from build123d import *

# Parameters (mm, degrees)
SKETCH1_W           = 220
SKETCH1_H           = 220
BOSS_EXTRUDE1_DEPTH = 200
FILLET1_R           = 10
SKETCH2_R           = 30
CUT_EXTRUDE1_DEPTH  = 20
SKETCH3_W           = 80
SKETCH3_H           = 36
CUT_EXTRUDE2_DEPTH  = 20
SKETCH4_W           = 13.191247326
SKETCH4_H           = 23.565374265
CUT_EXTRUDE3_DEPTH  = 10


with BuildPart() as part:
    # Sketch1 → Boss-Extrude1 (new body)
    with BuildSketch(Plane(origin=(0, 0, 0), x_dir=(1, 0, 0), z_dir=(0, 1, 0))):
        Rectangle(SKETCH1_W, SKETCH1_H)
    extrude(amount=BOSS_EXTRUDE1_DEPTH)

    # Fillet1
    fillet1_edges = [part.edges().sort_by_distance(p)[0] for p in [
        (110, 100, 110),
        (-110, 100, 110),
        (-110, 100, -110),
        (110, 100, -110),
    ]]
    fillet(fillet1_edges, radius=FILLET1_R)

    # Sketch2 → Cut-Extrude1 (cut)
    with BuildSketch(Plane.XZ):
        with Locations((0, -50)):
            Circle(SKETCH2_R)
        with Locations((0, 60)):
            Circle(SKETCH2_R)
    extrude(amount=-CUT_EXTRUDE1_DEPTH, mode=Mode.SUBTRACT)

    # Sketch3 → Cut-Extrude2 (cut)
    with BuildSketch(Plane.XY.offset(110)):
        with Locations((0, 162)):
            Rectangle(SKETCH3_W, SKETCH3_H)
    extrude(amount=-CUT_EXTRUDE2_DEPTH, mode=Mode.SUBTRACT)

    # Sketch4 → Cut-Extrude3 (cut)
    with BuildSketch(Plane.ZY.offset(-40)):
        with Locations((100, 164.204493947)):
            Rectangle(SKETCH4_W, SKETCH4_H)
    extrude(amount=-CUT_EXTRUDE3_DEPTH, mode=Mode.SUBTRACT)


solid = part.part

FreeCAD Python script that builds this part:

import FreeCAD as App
import Part
import Sketcher

V = App.Vector


def edges_at(feature, points):
    """Names of the edges that pass closest to the given points."""
    edges = feature.Shape.Edges
    near = lambda p: min(range(len(edges)), key=lambda i: edges[i].distToShape(Part.Vertex(*p))[0])
    return sorted({f"Edge{near(p) + 1}" for p in points})

doc = App.newDocument("Part")
params = doc.addObject("Spreadsheet::Sheet", "Params")
for row, (alias, value) in enumerate([
    ("sketch1_width", "220 mm"),
    ("pad1_length", "200 mm"),
    ("fillet_radius", "10 mm"),
    ("sketch2_diameter", "60 mm"),
    ("pocket1_length", "20 mm"),
    ("sketch3_width", "80 mm"),
    ("sketch3_height", "36 mm"),
    ("pocket2_length", "20 mm"),
    ("pocket3_length", "10 mm"),
], start=1):
    params.set(f"A{row}", alias)
    params.set(f"B{row}", "=" + value)
    params.setAlias(f"B{row}", alias)

body = doc.addObject("PartDesign::Body", "Body")

sketch1 = doc.addObject("Sketcher::SketchObject", "Sketch")
body.addObject(sketch1)
sketch1.AttachmentSupport = (doc.XZ_Plane, [""])
sketch1.MapMode = "FlatFace"
sketch1.addGeometry(Part.LineSegment(V(-110, -110, 0), V(-110, 110, 0)), False)
sketch1.addGeometry(Part.LineSegment(V(-110, 110, 0), V(110, 110, 0)), False)
sketch1.addGeometry(Part.LineSegment(V(110, 110, 0), V(110, -110, 0)), False)
sketch1.addGeometry(Part.LineSegment(V(110, -110, 0), V(-110, -110, 0)), False)
sketch1.addConstraint(Sketcher.Constraint("Coincident", 0, 2, 1, 1))
sketch1.addConstraint(Sketcher.Constraint("Coincident", 1, 2, 2, 1))
sketch1.addConstraint(Sketcher.Constraint("Coincident", 2, 2, 3, 1))
sketch1.addConstraint(Sketcher.Constraint("Coincident", 3, 2, 0, 1))
sketch1.addConstraint(Sketcher.Constraint("Vertical", 0))
sketch1.addConstraint(Sketcher.Constraint("Horizontal", 1))
sketch1.addConstraint(Sketcher.Constraint("Vertical", 2))
sketch1.addConstraint(Sketcher.Constraint("Horizontal", 3))
sketch1.addConstraint(Sketcher.Constraint("Symmetric", 0, 2, 2, 2, -1, 1))
sketch1.addConstraint(Sketcher.Constraint("Equal", 3, 0))
sketch1.addConstraint(Sketcher.Constraint("DistanceX", 1, 1, 1, 2, 220.0))
sketch1.setExpression("Constraints[10]", "Params.sketch1_width")
pad1 = doc.addObject("PartDesign::Pad", "Pad")
body.addObject(pad1)
pad1.Profile = sketch1
pad1.setExpression("Length", "Params.pad1_length")
pad1.Reversed = True
doc.recompute()

fillet = doc.addObject("PartDesign::Fillet", "Fillet")
body.addObject(fillet)
fillet.Base = (pad1, edges_at(pad1, [
    (110, 100, 110),
    (-110, 100, 110),
    (-110, 100, -110),
    (110, 100, -110),
]))
fillet.setExpression("Radius", "Params.fillet_radius")

sketch2 = doc.addObject("Sketcher::SketchObject", "Sketch001")
body.addObject(sketch2)
sketch2.AttachmentSupport = (doc.XZ_Plane, [""])
sketch2.MapMode = "FlatFace"
sketch2.addGeometry(Part.Circle(V(0, -50, 0), V(0, 0, 1), 30), False)
sketch2.addGeometry(Part.Circle(V(0, 60, 0), V(0, 0, 1), 30), False)
sketch2.addConstraint(Sketcher.Constraint("Equal", 0, 1))
sketch2.addConstraint(Sketcher.Constraint("PointOnObject", 0, 3, -2))
sketch2.addConstraint(Sketcher.Constraint("PointOnObject", 1, 3, -2))
sketch2.addConstraint(Sketcher.Constraint("Diameter", 0, 60.0))
sketch2.addConstraint(Sketcher.Constraint("DistanceY", 0, 3, -1, 1, 50.0))
sketch2.addConstraint(Sketcher.Constraint("DistanceY", -1, 1, 1, 3, 60.0))
sketch2.setExpression("Constraints[3]", "Params.sketch2_diameter")
pocket1 = doc.addObject("PartDesign::Pocket", "Pocket")
body.addObject(pocket1)
pocket1.Profile = sketch2
pocket1.setExpression("Length", "Params.pocket1_length")

sketch3 = doc.addObject("Sketcher::SketchObject", "Sketch002")
body.addObject(sketch3)
sketch3.AttachmentSupport = (doc.XY_Plane, [""])
sketch3.MapMode = "FlatFace"
sketch3.AttachmentOffset = App.Placement(V(0, 0, 110), App.Rotation())
sketch3.addGeometry(Part.LineSegment(V(-40, 180, 0), V(-40, 144, 0)), False)
sketch3.addGeometry(Part.LineSegment(V(-40, 144, 0), V(40, 144, 0)), False)
sketch3.addGeometry(Part.LineSegment(V(40, 144, 0), V(40, 180, 0)), False)
sketch3.addGeometry(Part.LineSegment(V(40, 180, 0), V(-40, 180, 0)), False)
sketch3.addConstraint(Sketcher.Constraint("Coincident", 0, 2, 1, 1))
sketch3.addConstraint(Sketcher.Constraint("Coincident", 1, 2, 2, 1))
sketch3.addConstraint(Sketcher.Constraint("Coincident", 2, 2, 3, 1))
sketch3.addConstraint(Sketcher.Constraint("Coincident", 3, 2, 0, 1))
sketch3.addConstraint(Sketcher.Constraint("Vertical", 0))
sketch3.addConstraint(Sketcher.Constraint("Horizontal", 1))
sketch3.addConstraint(Sketcher.Constraint("Vertical", 2))
sketch3.addConstraint(Sketcher.Constraint("Horizontal", 3))
sketch3.addConstraint(Sketcher.Constraint("DistanceX", 1, 1, 1, 2, 80.0))
sketch3.addConstraint(Sketcher.Constraint("DistanceY", 0, 2, 0, 1, 36.0))
sketch3.addConstraint(Sketcher.Constraint("DistanceX", 0, 2, -1, 1, 40.0))
sketch3.addConstraint(Sketcher.Constraint("DistanceY", -1, 1, 0, 2, 144.0))
sketch3.setExpression("Constraints[8]", "Params.sketch3_width")
sketch3.setExpression("Constraints[9]", "Params.sketch3_height")
pocket2 = doc.addObject("PartDesign::Pocket", "Pocket001")
body.addObject(pocket2)
pocket2.Profile = sketch3
pocket2.setExpression("Length", "Params.pocket2_length")

sketch4 = doc.addObject("Sketcher::SketchObject", "Sketch003")
body.addObject(sketch4)
sketch4.AttachmentSupport = (doc.YZ_Plane, [""])
sketch4.MapMode = "FlatFace"
sketch4.AttachmentOffset = App.Placement(V(0, 0, 40), App.Rotation())
sketch4.addGeometry(Part.LineSegment(V(176, 93, 0), V(152, 93, 0)), False)
sketch4.addGeometry(Part.LineSegment(V(152, 93, 0), V(152, 107, 0)), False)
sketch4.addGeometry(Part.LineSegment(V(152, 107, 0), V(176, 107, 0)), False)
sketch4.addGeometry(Part.LineSegment(V(176, 107, 0), V(176, 93, 0)), False)
sketch4.addConstraint(Sketcher.Constraint("Coincident", 0, 2, 1, 1))
sketch4.addConstraint(Sketcher.Constraint("Coincident", 1, 2, 2, 1))
sketch4.addConstraint(Sketcher.Constraint("Coincident", 2, 2, 3, 1))
sketch4.addConstraint(Sketcher.Constraint("Coincident", 3, 2, 0, 1))
sketch4.addConstraint(Sketcher.Constraint("Horizontal", 0))
sketch4.addConstraint(Sketcher.Constraint("Vertical", 1))
sketch4.addConstraint(Sketcher.Constraint("Horizontal", 2))
sketch4.addConstraint(Sketcher.Constraint("Vertical", 3))
sketch4.addConstraint(Sketcher.Constraint("DistanceX", 0, 2, 0, 1, 23.565374))
sketch4.addConstraint(Sketcher.Constraint("DistanceY", 1, 1, 1, 2, 13.191247))
sketch4.addConstraint(Sketcher.Constraint("DistanceX", -1, 1, 2, 2, 175.987181))
sketch4.addConstraint(Sketcher.Constraint("DistanceY", -1, 1, 0, 2, 93.404376))
pocket3 = doc.addObject("PartDesign::Pocket", "Pocket002")
body.addObject(pocket3)
pocket3.Profile = sketch4
pocket3.setExpression("Length", "Params.pocket3_length")
pocket3.Reversed = True

doc.recompute()
